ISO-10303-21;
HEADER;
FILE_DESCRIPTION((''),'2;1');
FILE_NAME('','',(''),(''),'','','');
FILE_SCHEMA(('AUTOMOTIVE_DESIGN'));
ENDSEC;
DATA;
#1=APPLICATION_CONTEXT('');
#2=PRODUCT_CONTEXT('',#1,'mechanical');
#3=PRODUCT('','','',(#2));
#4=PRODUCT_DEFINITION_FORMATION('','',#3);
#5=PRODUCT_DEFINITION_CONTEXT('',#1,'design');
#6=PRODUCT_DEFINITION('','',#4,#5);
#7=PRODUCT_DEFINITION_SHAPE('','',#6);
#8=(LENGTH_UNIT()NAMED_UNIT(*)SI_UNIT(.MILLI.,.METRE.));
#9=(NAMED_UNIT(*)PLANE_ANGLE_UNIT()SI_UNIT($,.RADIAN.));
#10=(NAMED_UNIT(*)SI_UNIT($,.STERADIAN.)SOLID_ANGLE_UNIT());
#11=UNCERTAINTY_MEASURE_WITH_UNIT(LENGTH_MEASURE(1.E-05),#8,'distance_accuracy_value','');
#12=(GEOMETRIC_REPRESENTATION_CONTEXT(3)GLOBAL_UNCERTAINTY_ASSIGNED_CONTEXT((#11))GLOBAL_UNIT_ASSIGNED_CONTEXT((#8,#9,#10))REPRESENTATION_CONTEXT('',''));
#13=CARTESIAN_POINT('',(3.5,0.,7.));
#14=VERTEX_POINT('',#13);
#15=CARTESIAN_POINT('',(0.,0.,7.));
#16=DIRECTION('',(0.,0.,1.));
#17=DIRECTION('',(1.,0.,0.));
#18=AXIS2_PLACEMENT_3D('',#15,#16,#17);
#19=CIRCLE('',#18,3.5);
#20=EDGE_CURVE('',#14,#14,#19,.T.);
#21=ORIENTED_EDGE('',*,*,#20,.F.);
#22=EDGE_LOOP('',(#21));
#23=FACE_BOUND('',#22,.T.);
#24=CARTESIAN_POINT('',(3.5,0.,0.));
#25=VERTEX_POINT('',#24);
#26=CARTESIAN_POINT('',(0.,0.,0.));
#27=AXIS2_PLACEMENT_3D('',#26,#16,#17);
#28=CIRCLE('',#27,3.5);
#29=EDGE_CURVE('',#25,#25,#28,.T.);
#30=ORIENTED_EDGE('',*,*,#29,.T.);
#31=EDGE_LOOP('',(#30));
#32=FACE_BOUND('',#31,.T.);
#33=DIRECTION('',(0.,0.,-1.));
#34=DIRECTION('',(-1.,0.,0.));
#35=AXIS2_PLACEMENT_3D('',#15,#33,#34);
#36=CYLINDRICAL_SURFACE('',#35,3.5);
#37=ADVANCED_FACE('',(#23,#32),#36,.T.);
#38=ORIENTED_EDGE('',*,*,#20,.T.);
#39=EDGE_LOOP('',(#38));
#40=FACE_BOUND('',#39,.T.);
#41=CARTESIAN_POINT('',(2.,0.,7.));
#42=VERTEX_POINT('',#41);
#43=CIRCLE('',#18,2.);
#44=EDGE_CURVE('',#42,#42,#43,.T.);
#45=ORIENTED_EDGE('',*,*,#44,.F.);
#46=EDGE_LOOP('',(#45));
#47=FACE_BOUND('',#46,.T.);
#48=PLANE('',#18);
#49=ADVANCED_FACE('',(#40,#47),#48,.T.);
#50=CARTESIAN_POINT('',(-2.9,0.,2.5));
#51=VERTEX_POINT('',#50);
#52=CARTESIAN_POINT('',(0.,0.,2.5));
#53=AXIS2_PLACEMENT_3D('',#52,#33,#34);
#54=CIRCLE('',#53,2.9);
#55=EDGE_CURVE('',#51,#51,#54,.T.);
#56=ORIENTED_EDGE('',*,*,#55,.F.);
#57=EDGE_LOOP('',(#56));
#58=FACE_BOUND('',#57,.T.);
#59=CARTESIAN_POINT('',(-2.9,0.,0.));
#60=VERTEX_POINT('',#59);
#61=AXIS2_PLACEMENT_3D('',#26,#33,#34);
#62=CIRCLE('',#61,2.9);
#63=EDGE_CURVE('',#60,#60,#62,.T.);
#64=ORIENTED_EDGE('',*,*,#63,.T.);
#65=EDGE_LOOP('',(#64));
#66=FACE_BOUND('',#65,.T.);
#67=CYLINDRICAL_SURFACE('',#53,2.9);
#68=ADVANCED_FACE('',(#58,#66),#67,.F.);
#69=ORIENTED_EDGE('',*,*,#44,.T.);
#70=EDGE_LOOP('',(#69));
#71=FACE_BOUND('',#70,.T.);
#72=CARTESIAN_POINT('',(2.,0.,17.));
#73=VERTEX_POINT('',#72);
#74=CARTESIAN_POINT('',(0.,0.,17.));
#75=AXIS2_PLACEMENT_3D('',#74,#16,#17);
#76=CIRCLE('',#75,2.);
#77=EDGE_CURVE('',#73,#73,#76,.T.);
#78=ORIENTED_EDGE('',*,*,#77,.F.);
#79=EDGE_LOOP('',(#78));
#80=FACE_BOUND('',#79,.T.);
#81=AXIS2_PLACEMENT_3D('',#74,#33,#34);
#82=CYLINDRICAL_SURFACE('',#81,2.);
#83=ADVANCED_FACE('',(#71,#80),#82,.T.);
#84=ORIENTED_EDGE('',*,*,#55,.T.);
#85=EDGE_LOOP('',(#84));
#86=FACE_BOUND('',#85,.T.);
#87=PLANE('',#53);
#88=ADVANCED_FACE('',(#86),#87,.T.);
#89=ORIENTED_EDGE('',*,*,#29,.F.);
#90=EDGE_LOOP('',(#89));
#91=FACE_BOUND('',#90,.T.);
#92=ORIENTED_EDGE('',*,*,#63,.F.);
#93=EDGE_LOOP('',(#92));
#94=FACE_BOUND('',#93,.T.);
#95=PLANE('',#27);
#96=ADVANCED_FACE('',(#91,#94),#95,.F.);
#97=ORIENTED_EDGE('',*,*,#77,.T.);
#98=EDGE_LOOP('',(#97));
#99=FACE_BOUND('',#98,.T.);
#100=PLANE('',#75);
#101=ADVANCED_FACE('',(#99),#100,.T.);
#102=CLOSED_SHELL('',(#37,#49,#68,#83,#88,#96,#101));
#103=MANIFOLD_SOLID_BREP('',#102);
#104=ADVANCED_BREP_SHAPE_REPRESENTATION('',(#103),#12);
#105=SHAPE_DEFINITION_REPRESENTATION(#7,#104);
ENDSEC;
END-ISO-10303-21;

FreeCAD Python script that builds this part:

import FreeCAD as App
import Part
import Sketcher

V = App.Vector

doc = App.newDocument("Part")
body = doc.addObject("PartDesign::Body", "Body")

# Sketch on XY plane
sketch1 = body.newObject("Sketcher::SketchObject", "Sketch")
sketch1.AttachmentSupport = (doc.getObject("XY_Plane"), [""])
sketch1.MapMode = "FlatFace"
sketch1.addGeometry(Part.Circle(V(0, 0, 0), V(0, 0, 1), 3.5), False)
sketch1.addConstraint([
    Sketcher.Constraint("Coincident", 0, 3, -1, 1),
    Sketcher.Constraint("Diameter", 0, 7.0),
])
pad1 = body.newObject("PartDesign::Pad", "Pad")
pad1.Profile = sketch1
pad1.Length = 7

# Sketch on XY plane
sketch2 = body.newObject("Sketcher::SketchObject", "Sketch001")
sketch2.AttachmentSupport = (doc.getObject("XY_Plane"), [""])
sketch2.MapMode = "FlatFace"
sketch2.addGeometry(Part.Circle(V(0, 0, 0), V(0, 0, 1), 2.9), False)
sketch2.addConstraint([
    Sketcher.Constraint("Coincident", 0, 3, -1, 1),
    Sketcher.Constraint("Diameter", 0, 5.8),
])
pocket1 = body.newObject("PartDesign::Pocket", "Pocket")
pocket1.Profile = sketch2
pocket1.Length = 2.5
pocket1.Reversed = True

# Sketch on XY plane
sketch3 = body.newObject("Sketcher::SketchObject", "Sketch002")
sketch3.AttachmentSupport = (doc.getObject("XY_Plane"), [""])
sketch3.MapMode = "FlatFace"
sketch3.AttachmentOffset = App.Placement(V(0, 0, 7), App.Rotation())
sketch3.addGeometry(Part.Circle(V(0, 0, 0), V(0, 0, 1), 2), False)
sketch3.addConstraint([
    Sketcher.Constraint("Coincident", 0, 3, -1, 1),
    Sketcher.Constraint("Diameter", 0, 4.0),
])
pad2 = body.newObject("PartDesign::Pad", "Pad001")
pad2.Profile = sketch3
pad2.Length = 10

doc.recompute()
